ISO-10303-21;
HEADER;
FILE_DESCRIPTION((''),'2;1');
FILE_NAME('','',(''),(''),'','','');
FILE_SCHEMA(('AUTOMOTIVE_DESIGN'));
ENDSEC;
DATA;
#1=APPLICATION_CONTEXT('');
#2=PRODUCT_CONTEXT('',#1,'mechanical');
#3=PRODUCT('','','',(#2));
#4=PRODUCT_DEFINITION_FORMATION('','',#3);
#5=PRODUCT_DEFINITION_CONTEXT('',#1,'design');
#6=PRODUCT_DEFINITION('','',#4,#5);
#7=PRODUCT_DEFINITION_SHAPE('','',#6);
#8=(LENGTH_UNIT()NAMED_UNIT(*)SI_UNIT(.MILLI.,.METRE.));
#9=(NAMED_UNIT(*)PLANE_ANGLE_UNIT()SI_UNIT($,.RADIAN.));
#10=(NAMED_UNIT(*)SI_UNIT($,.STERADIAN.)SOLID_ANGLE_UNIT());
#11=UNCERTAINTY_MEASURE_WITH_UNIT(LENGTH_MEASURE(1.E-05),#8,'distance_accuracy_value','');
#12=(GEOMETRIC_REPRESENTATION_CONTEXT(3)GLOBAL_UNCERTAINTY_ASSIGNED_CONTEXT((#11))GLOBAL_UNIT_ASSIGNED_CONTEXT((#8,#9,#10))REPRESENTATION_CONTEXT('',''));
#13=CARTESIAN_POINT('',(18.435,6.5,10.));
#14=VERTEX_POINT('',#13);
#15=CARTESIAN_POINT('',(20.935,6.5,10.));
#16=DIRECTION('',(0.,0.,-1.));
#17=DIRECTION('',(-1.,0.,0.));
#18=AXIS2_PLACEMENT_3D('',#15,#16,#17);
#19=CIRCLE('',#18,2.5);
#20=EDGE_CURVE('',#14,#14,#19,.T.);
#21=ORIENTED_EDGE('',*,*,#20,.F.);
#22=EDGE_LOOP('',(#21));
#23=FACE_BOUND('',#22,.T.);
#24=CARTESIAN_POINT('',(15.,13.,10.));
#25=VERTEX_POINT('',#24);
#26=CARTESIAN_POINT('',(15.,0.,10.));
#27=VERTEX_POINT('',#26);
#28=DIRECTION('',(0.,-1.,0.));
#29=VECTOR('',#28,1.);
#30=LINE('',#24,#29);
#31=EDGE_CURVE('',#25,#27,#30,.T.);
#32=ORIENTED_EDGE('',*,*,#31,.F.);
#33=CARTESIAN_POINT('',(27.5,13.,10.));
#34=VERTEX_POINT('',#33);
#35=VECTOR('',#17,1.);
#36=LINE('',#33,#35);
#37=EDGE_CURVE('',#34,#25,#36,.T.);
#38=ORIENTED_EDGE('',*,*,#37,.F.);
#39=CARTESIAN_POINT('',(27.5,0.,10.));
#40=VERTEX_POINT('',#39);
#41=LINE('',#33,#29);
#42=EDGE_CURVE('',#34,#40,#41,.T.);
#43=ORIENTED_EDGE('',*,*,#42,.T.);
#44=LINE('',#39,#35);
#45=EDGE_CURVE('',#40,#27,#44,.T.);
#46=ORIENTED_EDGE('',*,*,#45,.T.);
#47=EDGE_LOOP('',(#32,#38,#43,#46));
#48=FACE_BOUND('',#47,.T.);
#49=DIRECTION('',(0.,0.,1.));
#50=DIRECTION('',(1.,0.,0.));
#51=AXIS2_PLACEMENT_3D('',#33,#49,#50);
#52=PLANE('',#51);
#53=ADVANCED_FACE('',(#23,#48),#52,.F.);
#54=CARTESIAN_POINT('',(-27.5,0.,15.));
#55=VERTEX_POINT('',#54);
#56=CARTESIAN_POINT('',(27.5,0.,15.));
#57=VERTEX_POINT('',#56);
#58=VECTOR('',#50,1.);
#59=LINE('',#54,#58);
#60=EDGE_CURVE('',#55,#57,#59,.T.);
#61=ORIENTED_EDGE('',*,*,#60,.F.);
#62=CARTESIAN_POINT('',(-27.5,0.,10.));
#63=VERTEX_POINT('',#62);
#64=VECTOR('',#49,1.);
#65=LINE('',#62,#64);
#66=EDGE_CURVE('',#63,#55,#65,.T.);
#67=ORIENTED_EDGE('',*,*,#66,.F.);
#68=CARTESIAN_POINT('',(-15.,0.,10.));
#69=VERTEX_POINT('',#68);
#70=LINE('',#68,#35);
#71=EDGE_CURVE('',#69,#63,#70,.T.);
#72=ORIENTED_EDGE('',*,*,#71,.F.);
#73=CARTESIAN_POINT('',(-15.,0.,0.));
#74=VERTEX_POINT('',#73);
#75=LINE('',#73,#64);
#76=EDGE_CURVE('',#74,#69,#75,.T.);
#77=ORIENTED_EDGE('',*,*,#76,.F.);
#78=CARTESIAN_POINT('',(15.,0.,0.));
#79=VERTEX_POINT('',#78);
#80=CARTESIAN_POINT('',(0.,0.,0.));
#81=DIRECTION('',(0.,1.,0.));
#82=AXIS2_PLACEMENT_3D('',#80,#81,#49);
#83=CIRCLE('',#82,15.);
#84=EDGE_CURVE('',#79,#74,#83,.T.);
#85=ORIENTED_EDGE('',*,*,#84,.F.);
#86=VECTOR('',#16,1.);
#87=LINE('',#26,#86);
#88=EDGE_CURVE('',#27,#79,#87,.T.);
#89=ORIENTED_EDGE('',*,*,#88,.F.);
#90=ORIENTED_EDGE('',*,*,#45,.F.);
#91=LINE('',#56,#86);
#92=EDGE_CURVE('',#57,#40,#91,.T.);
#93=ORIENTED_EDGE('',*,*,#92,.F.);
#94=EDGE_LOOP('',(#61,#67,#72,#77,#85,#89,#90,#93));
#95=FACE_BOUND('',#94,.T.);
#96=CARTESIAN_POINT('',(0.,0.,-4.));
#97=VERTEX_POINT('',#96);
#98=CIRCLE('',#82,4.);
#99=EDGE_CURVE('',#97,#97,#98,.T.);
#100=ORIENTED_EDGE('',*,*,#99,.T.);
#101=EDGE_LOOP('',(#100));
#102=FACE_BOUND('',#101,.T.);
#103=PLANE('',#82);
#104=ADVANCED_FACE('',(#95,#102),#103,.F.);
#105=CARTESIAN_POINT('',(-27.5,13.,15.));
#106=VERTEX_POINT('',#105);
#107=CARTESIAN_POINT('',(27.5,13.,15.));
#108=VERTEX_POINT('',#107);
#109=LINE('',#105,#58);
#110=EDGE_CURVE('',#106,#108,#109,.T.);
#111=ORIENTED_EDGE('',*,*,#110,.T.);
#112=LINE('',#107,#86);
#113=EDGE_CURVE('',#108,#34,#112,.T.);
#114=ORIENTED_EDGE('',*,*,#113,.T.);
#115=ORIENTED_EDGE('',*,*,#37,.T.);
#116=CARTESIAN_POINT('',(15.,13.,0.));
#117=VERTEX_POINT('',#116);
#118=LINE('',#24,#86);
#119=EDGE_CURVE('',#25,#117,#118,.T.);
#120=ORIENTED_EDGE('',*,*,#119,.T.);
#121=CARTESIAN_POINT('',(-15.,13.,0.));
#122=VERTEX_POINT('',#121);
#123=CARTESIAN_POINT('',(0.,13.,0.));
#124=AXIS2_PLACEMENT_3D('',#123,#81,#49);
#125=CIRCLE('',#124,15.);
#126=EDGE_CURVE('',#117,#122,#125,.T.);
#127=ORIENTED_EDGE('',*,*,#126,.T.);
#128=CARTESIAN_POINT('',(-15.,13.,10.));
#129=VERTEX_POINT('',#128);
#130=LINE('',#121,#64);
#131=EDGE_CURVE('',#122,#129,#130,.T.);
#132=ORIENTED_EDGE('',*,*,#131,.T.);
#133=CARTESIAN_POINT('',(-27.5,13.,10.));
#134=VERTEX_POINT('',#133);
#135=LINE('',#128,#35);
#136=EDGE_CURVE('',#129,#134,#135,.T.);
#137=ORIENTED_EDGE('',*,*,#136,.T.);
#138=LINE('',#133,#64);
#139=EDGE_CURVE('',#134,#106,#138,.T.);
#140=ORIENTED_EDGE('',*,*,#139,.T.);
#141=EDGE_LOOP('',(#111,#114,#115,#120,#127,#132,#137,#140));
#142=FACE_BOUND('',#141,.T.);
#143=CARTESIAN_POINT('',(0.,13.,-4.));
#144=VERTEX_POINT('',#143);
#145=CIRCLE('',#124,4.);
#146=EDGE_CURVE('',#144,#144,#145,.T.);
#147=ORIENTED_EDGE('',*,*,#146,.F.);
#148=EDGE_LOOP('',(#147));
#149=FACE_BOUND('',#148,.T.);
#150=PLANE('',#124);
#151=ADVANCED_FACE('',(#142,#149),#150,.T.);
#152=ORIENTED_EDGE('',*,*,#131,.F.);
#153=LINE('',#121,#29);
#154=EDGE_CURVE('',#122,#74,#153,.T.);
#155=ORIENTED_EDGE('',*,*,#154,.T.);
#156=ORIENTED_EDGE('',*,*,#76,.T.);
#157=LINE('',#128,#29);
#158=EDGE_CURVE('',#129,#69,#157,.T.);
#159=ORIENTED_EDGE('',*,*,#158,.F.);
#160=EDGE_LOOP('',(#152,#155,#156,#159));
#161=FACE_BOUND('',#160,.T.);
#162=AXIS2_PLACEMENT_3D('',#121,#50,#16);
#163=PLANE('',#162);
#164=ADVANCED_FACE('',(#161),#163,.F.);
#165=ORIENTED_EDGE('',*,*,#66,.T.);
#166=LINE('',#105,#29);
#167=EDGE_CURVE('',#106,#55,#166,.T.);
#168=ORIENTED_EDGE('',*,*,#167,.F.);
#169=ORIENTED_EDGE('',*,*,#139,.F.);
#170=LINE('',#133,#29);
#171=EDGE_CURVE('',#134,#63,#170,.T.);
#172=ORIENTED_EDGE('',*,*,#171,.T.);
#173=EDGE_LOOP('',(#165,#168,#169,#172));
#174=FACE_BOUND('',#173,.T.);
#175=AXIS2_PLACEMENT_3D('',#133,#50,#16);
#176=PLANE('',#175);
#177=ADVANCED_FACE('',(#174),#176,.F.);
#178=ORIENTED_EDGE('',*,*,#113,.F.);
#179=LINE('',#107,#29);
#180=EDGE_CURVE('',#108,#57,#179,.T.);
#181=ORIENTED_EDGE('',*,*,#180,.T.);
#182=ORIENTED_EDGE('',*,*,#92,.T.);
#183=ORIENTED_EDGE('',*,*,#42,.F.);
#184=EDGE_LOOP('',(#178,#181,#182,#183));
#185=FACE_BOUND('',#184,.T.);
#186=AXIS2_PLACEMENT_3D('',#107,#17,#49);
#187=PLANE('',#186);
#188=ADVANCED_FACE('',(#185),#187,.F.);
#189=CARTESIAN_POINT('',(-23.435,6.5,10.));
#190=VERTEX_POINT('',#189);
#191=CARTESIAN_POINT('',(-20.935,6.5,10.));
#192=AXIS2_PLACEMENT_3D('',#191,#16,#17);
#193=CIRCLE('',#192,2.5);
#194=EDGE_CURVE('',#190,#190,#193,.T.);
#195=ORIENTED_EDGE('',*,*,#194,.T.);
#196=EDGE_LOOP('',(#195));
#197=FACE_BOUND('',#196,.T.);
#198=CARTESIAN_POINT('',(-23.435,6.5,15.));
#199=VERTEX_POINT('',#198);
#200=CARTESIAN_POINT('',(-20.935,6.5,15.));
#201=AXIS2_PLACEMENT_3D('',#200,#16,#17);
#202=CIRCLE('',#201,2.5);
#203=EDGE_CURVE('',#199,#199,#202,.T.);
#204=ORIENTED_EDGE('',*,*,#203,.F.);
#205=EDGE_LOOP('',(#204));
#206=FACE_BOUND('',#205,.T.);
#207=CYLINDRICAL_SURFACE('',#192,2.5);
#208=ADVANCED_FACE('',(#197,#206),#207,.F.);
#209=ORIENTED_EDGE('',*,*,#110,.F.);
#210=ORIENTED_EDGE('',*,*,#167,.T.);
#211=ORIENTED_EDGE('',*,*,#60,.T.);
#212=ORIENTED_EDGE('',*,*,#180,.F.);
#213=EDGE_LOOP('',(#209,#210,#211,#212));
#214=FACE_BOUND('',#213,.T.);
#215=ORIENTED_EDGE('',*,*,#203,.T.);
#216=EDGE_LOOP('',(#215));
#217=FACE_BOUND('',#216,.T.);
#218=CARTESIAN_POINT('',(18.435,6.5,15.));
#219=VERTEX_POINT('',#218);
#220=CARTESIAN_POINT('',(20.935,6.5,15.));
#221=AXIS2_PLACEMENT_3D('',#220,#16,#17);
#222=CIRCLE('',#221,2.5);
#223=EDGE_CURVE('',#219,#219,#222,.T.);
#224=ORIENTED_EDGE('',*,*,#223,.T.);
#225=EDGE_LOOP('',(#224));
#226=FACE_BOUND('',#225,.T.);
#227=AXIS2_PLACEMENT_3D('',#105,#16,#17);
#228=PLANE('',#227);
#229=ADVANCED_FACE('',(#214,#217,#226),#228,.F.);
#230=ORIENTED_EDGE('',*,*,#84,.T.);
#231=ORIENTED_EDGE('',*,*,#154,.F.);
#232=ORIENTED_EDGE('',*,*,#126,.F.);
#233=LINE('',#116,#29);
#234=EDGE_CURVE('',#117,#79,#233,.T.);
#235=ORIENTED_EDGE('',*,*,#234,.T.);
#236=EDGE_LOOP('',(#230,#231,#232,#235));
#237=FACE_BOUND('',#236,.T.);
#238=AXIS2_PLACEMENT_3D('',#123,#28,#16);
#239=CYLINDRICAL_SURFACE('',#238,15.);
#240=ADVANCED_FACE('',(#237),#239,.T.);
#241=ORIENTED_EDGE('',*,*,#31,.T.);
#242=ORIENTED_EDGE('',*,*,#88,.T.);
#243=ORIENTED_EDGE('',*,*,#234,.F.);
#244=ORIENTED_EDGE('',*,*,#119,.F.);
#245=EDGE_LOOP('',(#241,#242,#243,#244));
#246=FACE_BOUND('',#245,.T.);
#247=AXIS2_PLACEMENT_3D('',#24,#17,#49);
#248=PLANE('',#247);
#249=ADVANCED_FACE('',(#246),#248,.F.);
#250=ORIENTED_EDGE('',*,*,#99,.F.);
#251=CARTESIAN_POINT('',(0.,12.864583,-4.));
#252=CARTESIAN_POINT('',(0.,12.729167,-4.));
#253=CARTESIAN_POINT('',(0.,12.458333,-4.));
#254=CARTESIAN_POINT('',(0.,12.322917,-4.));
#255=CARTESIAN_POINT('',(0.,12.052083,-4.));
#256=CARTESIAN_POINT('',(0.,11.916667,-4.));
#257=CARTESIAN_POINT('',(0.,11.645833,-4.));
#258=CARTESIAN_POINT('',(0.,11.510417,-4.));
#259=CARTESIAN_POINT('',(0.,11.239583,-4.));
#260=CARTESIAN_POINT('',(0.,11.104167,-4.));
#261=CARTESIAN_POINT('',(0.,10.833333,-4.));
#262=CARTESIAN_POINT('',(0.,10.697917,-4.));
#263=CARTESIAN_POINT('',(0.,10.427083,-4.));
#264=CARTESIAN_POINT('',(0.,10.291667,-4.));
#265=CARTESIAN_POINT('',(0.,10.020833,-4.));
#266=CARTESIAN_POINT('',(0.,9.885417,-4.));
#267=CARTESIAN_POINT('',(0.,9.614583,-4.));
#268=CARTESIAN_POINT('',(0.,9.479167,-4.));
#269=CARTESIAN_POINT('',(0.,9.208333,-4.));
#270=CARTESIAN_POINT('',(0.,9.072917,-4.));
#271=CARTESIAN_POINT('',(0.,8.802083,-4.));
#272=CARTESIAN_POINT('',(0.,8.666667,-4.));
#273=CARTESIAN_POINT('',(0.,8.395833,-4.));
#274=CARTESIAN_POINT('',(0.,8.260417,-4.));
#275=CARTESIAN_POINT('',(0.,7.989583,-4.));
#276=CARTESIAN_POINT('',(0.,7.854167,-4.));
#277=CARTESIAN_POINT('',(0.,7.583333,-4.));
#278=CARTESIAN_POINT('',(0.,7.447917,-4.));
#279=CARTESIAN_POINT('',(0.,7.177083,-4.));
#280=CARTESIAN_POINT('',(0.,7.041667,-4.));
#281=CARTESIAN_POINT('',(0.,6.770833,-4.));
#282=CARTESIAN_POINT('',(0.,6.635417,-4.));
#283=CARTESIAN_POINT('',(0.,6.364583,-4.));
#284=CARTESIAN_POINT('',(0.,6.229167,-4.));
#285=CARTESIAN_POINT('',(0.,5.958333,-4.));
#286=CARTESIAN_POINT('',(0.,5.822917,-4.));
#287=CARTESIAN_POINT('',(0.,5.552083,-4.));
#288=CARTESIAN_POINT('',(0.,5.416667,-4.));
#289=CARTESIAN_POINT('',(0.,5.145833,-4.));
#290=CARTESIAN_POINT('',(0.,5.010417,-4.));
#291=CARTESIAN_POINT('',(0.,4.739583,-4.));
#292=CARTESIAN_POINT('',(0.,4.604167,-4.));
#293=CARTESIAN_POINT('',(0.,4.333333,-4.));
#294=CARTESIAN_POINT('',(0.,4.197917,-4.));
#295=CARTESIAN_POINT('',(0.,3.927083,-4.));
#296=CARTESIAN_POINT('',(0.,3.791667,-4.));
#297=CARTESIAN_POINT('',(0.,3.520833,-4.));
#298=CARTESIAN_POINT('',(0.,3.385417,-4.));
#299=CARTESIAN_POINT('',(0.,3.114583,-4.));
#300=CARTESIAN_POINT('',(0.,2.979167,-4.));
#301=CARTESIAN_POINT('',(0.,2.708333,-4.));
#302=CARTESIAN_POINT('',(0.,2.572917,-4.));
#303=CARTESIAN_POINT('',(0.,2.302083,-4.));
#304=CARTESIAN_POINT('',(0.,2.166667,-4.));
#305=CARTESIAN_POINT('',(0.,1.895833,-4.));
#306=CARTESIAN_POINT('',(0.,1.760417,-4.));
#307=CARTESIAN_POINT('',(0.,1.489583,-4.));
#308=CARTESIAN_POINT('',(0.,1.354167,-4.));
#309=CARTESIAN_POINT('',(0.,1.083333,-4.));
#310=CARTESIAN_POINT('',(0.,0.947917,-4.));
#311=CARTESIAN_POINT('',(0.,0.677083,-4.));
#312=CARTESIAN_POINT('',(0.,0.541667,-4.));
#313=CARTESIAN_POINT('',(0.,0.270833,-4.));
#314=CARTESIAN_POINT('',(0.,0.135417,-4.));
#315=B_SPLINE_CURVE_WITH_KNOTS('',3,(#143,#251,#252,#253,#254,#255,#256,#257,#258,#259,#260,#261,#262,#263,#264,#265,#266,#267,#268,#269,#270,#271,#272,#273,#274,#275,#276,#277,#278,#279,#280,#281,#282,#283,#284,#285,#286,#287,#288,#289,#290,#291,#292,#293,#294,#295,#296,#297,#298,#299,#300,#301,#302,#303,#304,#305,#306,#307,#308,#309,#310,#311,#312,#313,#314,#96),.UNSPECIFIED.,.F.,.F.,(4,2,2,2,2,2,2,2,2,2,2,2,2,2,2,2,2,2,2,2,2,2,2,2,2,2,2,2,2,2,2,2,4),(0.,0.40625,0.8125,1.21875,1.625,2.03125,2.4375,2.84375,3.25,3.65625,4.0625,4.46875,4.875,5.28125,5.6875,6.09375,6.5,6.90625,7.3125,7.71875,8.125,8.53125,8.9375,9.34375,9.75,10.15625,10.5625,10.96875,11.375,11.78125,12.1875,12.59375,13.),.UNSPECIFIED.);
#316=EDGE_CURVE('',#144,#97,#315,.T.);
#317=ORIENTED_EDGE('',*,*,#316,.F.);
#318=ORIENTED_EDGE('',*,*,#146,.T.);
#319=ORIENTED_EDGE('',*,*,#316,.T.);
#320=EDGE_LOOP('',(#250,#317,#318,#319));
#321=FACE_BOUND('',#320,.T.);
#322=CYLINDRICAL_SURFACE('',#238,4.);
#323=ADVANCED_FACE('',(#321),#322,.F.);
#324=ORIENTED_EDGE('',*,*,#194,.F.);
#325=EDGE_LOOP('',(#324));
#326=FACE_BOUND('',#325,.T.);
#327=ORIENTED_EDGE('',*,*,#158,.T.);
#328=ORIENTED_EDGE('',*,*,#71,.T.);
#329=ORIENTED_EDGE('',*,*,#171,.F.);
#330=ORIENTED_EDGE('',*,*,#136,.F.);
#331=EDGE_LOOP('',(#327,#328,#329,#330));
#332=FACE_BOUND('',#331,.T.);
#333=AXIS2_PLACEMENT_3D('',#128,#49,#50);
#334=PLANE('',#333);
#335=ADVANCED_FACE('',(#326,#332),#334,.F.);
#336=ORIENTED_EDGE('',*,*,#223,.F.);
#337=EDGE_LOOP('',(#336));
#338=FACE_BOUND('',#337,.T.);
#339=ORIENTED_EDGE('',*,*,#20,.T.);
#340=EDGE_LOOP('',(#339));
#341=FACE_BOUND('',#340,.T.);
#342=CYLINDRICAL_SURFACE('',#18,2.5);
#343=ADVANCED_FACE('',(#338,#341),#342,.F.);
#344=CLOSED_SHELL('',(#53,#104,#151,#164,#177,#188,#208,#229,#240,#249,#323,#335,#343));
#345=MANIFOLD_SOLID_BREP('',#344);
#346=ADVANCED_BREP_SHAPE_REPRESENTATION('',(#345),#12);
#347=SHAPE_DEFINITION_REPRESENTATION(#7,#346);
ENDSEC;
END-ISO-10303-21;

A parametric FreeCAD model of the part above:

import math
import FreeCAD as App
import Part
import Sketcher
Q = App.Units.Quantity

doc = App.newDocument("Part")
body = doc.addObject("PartDesign::Body", "Body")

sketch1 = doc.addObject("Sketcher::SketchObject", "Sketch")
body.addObject(sketch1)
sketch1.AttachmentSupport = (doc.XZ_Plane, [""])
sketch1.MapMode = "FlatFace"
sketch1.addGeometry(Part.LineSegment(App.Vector(-15, 0, 0), App.Vector(-15, 10, 0)), False)
sketch1.addGeometry(Part.LineSegment(App.Vector(-15, 10, 0), App.Vector(-27.5, 10, 0)), False)
sketch1.addGeometry(Part.LineSegment(App.Vector(-27.5, 10, 0), App.Vector(-27.5, 15, 0)), False)
sketch1.addGeometry(Part.LineSegment(App.Vector(-27.5, 15, 0), App.Vector(27.5, 15, 0)), False)
sketch1.addGeometry(Part.LineSegment(App.Vector(27.5, 15, 0), App.Vector(27.5, 10, 0)), False)
sketch1.addGeometry(Part.LineSegment(App.Vector(27.5, 10, 0), App.Vector(15, 10, 0)), False)
sketch1.addGeometry(Part.LineSegment(App.Vector(15, 10, 0), App.Vector(15, 0, 0)), False)
sketch1.addGeometry(Part.ArcOfCircle(Part.Circle(App.Vector(0, 0, 0), App.Vector(0, 0, 1), 15), math.radians(180), math.radians(360)), False)
sketch1.addGeometry(Part.Circle(App.Vector(0, 0, 0), App.Vector(0, 0, 1), 4), False)
sketch1.addConstraint(Sketcher.Constraint("Coincident", 0, 2, 1, 1))
sketch1.addConstraint(Sketcher.Constraint("Coincident", 1, 2, 2, 1))
sketch1.addConstraint(Sketcher.Constraint("Coincident", 2, 2, 3, 1))
sketch1.addConstraint(Sketcher.Constraint("Coincident", 3, 2, 4, 1))
sketch1.addConstraint(Sketcher.Constraint("Coincident", 4, 2, 5, 1))
sketch1.addConstraint(Sketcher.Constraint("Coincident", 5, 2, 6, 1))
sketch1.addConstraint(Sketcher.Constraint("Tangent", 6, 2, 7, 2))
sketch1.addConstraint(Sketcher.Constraint("Tangent", 7, 1, 0, 1))
sketch1.addConstraint(Sketcher.Constraint("Vertical", 0))
sketch1.addConstraint(Sketcher.Constraint("Horizontal", 1))
sketch1.addConstraint(Sketcher.Constraint("Vertical", 2))
sketch1.addConstraint(Sketcher.Constraint("Horizontal", 3))
sketch1.addConstraint(Sketcher.Constraint("Vertical", 4))
sketch1.addConstraint(Sketcher.Constraint("Horizontal", 5))
sketch1.addConstraint(Sketcher.Constraint("Vertical", 6))
sketch1.addConstraint(Sketcher.Constraint("Coincident", 7, 3, -1, 1))
sketch1.addConstraint(Sketcher.Constraint("Coincident", 8, 3, -1, 1))
sketch1.addConstraint(Sketcher.Constraint("Symmetric", 1, 2, 4, 2, -2))
sketch1.addConstraint(Sketcher.Constraint("Diameter", 8, Q("8 mm")))
sketch1.addConstraint(Sketcher.Constraint("Radius", 7, Q("15 mm")))
sketch1.addConstraint(Sketcher.Constraint("DistanceX", 3, 1, 3, 2, Q("55 mm")))
sketch1.addConstraint(Sketcher.Constraint("DistanceY", 0, 1, 0, 2, Q("10 mm")))
sketch1.addConstraint(Sketcher.Constraint("DistanceY", 2, 1, 2, 2, Q("5 mm")))
pad1 = doc.addObject("PartDesign::Pad", "Pad")
body.addObject(pad1)
pad1.Profile = sketch1
pad1.Length = 13
pad1.Reversed = True

sketch2 = doc.addObject("Sketcher::SketchObject", "Sketch001")
body.addObject(sketch2)
sketch2.AttachmentSupport = (doc.XY_Plane, [""])
sketch2.MapMode = "FlatFace"
sketch2.AttachmentOffset = App.Placement(App.Vector(0, 0, 10), App.Rotation())
sketch2.addGeometry(Part.Circle(App.Vector(20.935, 6.5, 0), App.Vector(0, 0, 1), 2.5), False)
sketch2.addGeometry(Part.Circle(App.Vector(-20.935, 6.5, 0), App.Vector(0, 0, 1), 2.5), False)
sketch2.addConstraint(Sketcher.Constraint("Equal", 0, 1))
sketch2.addConstraint(Sketcher.Constraint("Symmetric", 0, 3, 1, 3, -2))
sketch2.addConstraint(Sketcher.Constraint("Diameter", 0, Q("5 mm")))
sketch2.addConstraint(Sketcher.Constraint("DistanceY", -1, 1, 0, 3, Q("6.5 mm")))
sketch2.addConstraint(Sketcher.Constraint("DistanceX", 1, 3, 0, 3, Q("41.87 mm")))
doc.recompute()
hole = doc.addObject("PartDesign::Hole", "Hole")
body.addObject(hole)
hole.Profile = sketch2
hole.ThreadType = "None"
hole.Diameter = 5
hole.DepthType = "ThroughAll"
hole.Reversed = True

doc.recompute()
